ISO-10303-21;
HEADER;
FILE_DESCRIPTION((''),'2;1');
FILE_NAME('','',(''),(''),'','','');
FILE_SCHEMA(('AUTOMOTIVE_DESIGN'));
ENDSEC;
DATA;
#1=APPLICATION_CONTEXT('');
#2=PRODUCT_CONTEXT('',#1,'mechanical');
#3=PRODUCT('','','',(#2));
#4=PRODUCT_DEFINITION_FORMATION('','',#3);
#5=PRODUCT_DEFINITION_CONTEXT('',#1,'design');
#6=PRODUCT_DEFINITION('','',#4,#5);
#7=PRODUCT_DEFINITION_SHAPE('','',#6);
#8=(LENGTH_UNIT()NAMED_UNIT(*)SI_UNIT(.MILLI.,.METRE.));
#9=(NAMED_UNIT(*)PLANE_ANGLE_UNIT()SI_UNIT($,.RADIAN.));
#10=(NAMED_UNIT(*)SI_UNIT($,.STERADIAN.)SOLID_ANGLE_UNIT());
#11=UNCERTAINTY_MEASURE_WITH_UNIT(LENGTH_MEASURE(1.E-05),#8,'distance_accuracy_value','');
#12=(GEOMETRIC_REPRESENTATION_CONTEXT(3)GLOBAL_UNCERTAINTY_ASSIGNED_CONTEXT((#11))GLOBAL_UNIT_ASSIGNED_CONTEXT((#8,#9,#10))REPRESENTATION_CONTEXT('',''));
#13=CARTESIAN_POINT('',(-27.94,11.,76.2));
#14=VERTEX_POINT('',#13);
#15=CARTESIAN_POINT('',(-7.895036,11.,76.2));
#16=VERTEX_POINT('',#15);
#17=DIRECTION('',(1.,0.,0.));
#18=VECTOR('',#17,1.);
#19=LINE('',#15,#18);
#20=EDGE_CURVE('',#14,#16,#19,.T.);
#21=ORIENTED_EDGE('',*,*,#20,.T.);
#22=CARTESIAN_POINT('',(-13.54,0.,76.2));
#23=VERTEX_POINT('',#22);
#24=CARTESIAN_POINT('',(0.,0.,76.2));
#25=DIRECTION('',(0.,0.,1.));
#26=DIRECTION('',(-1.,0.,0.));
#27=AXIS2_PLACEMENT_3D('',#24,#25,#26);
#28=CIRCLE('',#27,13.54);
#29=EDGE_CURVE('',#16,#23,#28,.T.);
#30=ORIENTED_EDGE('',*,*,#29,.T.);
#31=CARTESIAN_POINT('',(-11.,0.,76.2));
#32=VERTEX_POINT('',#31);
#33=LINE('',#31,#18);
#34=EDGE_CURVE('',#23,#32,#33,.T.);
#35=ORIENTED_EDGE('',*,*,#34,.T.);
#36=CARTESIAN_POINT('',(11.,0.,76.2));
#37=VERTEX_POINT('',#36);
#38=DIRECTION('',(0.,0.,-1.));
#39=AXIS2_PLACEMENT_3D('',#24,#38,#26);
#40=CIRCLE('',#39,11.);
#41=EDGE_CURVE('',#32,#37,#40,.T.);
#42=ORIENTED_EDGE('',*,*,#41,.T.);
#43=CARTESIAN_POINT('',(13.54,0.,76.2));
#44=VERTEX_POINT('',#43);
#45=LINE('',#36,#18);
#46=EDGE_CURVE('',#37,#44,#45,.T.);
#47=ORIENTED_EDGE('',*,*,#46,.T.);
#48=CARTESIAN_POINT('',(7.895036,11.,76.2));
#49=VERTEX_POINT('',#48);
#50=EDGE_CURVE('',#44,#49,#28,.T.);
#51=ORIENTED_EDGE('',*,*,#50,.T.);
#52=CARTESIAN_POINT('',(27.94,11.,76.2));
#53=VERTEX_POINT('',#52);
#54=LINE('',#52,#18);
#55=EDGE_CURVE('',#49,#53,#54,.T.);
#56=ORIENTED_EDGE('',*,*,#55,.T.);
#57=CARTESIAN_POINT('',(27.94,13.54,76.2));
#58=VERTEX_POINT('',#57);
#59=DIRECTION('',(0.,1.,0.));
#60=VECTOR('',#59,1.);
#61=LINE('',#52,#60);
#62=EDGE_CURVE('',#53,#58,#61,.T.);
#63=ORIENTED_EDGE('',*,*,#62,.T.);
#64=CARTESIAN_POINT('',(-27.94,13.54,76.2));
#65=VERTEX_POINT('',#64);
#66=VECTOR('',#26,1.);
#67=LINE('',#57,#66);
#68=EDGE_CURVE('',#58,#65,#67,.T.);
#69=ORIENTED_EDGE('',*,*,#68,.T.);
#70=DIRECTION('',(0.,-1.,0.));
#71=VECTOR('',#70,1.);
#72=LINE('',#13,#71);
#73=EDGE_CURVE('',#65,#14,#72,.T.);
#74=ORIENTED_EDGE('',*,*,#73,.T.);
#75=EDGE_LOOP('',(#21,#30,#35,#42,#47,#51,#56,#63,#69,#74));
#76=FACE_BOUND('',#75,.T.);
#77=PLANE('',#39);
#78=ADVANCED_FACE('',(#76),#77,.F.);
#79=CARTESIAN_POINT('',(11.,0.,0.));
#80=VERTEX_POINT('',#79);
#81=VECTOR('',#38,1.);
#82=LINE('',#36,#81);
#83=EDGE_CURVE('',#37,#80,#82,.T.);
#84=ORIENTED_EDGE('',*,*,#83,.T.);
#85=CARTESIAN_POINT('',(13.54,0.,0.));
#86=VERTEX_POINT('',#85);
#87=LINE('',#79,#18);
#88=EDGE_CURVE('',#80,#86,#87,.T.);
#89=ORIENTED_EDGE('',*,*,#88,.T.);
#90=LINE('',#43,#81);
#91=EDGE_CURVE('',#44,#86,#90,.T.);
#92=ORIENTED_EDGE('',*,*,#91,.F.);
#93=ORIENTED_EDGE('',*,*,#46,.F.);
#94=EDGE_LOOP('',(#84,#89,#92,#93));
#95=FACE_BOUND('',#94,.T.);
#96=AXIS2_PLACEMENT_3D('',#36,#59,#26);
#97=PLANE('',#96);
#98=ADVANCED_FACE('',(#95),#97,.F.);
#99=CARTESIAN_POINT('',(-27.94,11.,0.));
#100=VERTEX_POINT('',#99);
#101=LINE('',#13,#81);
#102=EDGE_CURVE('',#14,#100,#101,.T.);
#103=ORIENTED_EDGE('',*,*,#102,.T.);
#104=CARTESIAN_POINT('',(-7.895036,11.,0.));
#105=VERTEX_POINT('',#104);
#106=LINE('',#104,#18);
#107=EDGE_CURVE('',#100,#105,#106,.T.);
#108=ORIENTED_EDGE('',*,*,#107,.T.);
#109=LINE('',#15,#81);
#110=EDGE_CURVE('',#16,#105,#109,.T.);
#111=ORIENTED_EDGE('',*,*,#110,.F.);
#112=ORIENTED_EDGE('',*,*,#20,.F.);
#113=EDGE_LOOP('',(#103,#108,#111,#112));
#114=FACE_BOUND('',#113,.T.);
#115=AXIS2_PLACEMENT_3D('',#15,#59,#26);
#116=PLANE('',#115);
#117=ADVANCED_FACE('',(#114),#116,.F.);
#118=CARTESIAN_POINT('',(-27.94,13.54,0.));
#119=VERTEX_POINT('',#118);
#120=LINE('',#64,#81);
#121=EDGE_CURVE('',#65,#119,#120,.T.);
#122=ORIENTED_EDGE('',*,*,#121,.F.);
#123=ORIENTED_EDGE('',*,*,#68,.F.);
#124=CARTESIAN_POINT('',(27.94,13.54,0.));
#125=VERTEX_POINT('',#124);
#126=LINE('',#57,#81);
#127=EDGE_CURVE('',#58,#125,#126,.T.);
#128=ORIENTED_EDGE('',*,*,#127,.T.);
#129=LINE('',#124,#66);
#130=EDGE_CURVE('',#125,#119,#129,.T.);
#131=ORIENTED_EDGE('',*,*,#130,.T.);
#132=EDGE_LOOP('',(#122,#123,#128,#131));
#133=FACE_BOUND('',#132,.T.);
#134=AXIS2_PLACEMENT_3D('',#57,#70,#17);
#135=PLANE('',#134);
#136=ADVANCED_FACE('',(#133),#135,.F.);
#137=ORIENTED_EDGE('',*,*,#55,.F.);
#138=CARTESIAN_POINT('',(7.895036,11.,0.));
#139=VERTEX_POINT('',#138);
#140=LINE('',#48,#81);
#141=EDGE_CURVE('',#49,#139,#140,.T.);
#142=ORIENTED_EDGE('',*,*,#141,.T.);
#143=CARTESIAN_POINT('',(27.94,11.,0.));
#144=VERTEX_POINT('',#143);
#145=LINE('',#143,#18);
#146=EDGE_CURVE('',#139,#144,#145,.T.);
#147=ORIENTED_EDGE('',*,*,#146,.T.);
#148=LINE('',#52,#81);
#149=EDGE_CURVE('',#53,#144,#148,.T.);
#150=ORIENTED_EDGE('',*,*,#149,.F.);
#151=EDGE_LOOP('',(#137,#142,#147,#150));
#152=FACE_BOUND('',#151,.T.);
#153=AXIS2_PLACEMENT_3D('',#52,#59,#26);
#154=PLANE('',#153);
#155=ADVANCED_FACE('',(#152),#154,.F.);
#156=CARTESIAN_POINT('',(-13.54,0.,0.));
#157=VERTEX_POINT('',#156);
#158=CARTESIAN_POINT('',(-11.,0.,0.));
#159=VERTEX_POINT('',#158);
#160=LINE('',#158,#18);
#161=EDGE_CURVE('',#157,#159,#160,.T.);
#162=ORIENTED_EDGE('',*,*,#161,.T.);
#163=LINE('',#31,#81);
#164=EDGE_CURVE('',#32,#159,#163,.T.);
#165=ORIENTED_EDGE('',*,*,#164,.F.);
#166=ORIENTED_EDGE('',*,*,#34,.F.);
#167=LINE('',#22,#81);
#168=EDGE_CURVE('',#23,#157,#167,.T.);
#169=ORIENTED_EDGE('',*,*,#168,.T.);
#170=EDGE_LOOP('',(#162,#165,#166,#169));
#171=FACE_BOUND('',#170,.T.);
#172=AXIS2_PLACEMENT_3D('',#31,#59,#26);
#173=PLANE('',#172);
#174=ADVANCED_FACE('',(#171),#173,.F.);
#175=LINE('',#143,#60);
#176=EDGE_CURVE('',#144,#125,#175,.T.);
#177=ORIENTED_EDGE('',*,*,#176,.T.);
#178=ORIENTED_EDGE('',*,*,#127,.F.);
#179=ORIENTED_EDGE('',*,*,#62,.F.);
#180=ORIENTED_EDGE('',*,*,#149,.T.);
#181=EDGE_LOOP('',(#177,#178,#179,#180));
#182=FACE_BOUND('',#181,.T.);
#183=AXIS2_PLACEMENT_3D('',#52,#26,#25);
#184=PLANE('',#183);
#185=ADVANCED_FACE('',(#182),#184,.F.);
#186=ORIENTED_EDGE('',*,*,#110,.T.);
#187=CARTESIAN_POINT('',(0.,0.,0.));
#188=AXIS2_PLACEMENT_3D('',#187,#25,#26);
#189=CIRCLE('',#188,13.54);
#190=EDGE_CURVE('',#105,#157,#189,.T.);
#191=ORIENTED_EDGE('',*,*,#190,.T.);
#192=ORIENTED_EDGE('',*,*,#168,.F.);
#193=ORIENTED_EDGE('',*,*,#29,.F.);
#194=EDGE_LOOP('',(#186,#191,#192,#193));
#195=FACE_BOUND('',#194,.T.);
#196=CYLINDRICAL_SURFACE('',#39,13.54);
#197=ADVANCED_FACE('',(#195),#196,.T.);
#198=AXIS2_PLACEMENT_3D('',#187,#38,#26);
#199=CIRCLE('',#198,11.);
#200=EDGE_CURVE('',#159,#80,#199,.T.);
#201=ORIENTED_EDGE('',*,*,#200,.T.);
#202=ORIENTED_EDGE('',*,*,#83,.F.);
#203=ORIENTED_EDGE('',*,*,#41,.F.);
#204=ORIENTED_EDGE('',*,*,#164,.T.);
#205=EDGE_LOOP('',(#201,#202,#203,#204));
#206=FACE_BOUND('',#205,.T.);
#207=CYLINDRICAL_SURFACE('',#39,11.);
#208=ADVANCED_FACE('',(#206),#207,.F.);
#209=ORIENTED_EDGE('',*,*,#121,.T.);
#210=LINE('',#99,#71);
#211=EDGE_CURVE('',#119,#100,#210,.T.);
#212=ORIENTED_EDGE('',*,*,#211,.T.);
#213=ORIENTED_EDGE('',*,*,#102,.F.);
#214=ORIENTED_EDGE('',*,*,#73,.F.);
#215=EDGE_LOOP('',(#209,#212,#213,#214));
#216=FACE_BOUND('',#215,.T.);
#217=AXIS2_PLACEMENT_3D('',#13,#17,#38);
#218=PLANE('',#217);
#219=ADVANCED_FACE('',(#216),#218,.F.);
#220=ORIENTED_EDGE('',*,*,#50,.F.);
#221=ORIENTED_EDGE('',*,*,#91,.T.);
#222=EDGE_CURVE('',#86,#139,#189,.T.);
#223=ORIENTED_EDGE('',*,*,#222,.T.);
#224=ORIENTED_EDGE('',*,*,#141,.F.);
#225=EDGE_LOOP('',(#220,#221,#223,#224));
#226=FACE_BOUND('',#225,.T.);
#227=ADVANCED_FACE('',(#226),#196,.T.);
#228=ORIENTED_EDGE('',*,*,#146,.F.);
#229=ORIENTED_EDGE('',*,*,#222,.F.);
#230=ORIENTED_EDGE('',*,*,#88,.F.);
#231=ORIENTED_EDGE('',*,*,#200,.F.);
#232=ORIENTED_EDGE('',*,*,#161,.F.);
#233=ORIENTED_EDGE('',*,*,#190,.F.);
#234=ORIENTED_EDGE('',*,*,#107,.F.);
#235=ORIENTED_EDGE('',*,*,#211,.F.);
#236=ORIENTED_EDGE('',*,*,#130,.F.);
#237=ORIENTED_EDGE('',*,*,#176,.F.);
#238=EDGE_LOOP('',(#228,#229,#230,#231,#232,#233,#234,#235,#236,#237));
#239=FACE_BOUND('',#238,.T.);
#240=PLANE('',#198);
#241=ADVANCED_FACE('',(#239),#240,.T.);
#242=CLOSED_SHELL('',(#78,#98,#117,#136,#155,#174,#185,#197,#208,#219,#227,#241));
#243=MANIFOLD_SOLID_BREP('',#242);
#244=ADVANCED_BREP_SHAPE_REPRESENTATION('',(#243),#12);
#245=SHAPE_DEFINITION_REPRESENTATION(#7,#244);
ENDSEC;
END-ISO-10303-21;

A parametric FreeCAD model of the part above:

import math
import FreeCAD as App
import Part
import Sketcher

V = App.Vector
Q = App.Units.Quantity

doc = App.newDocument("Part")
body = doc.addObject("PartDesign::Body", "Body")

sketch1 = body.newObject("Sketcher::SketchObject", "Sketch")
sketch1.AttachmentSupport = (doc.getObject("XY_Plane"), [""])
sketch1.MapMode = "FlatFace"
sketch1.addGeometry(Part.LineSegment(V(-13.5, 0, 0), V(-11, 0, 0)), False)
sketch1.addGeometry(Part.ArcOfCircle(Part.Circle(V(0, 0, 0), V(0, 0, 1), 11), math.radians(0), math.radians(180)), False)
sketch1.addGeometry(Part.LineSegment(V(11, 0, 0), V(13.5, 0, 0)), False)
sketch1.addGeometry(Part.ArcOfCircle(Part.Circle(V(0, 0, 0), V(0, 0, 1), 13.5), math.radians(0), math.radians(54)), False)
sketch1.addGeometry(Part.LineSegment(V(7.9, 11, 0), V(27.9, 11, 0)), False)
sketch1.addGeometry(Part.LineSegment(V(27.9, 11, 0), V(27.9, 13.5, 0)), False)
sketch1.addGeometry(Part.LineSegment(V(27.9, 13.5, 0), V(-27.9, 13.5, 0)), False)
sketch1.addGeometry(Part.LineSegment(V(-27.9, 13.5, 0), V(-27.9, 11, 0)), False)
sketch1.addGeometry(Part.LineSegment(V(-27.9, 11, 0), V(-7.9, 11, 0)), False)
sketch1.addGeometry(Part.ArcOfCircle(Part.Circle(V(0, 0, 0), V(0, 0, 1), 13.5), math.radians(126), math.radians(180)), False)
sketch1.addConstraint(Sketcher.Constraint("Coincident", 0, 2, 1, 2))
sketch1.addConstraint(Sketcher.Constraint("Coincident", 1, 1, 2, 1))
sketch1.addConstraint(Sketcher.Constraint("Coincident", 2, 2, 3, 1))
sketch1.addConstraint(Sketcher.Constraint("Coincident", 3, 2, 4, 1))
sketch1.addConstraint(Sketcher.Constraint("Coincident", 4, 2, 5, 1))
sketch1.addConstraint(Sketcher.Constraint("Coincident", 5, 2, 6, 1))
sketch1.addConstraint(Sketcher.Constraint("Coincident", 6, 2, 7, 1))
sketch1.addConstraint(Sketcher.Constraint("Coincident", 7, 2, 8, 1))
sketch1.addConstraint(Sketcher.Constraint("Coincident", 8, 2, 9, 1))
sketch1.addConstraint(Sketcher.Constraint("Coincident", 9, 2, 0, 1))
sketch1.addConstraint(Sketcher.Constraint("Horizontal", 0))
sketch1.addConstraint(Sketcher.Constraint("Horizontal", 2))
sketch1.addConstraint(Sketcher.Constraint("Horizontal", 4))
sketch1.addConstraint(Sketcher.Constraint("Vertical", 5))
sketch1.addConstraint(Sketcher.Constraint("Horizontal", 6))
sketch1.addConstraint(Sketcher.Constraint("Vertical", 7))
sketch1.addConstraint(Sketcher.Constraint("Horizontal", 8))
sketch1.addConstraint(Sketcher.Constraint("Coincident", 1, 3, -1, 1))
sketch1.addConstraint(Sketcher.Constraint("Coincident", 3, 3, -1, 1))
sketch1.addConstraint(Sketcher.Constraint("Coincident", 9, 3, -1, 1))
sketch1.addConstraint(Sketcher.Constraint("Equal", 3, 9))
sketch1.addConstraint(Sketcher.Constraint("Symmetric", 4, 2, 7, 2, -2))
sketch1.addConstraint(Sketcher.Constraint("PointOnObject", 0, 2, -1))
sketch1.addConstraint(Sketcher.Constraint("PointOnObject", 1, 1, -1))
sketch1.addConstraint(Sketcher.Constraint("Equal", 2, 5))
sketch1.addConstraint(Sketcher.Constraint("DistanceX", 0, 1, 0, 2, Q("0.1 in")))
sketch1.addConstraint(Sketcher.Constraint("DistanceX", 6, 2, 6, 1, Q("2.2 in")))
sketch1.addConstraint(Sketcher.Constraint("Radius", 1, 11.0))
sketch1.addConstraint(Sketcher.Constraint("DistanceY", -1, 1, 3, 2, 11.0))
pad1 = body.newObject("PartDesign::Pad", "Pad")
pad1.Profile = sketch1
pad1.Length = Q("3 in")

doc.recompute()
